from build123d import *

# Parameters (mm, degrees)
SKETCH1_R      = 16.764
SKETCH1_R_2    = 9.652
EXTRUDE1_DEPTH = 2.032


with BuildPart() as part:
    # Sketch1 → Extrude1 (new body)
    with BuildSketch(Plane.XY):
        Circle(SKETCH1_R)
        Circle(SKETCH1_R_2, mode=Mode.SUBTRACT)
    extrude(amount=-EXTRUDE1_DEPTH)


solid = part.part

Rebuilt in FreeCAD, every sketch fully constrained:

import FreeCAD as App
import Part
import Sketcher
Q = App.Units.Quantity

doc = App.newDocument("Part")
body = doc.addObject("PartDesign::Body", "Body")

# Sketch on XY plane
sketch1 = body.newObject("Sketcher::SketchObject", "Sketch")
sketch1.AttachmentSupport = (doc.getObject("XY_Plane"), [""])
sketch1.MapMode = "FlatFace"
sketch1.addGeometry([
    Part.Circle(App.Vector(0, 0, 0), App.Vector(0, 0, 1), 17),
    Part.Circle(App.Vector(0, 0, 0), App.Vector(0, 0, 1), 10),
], False)
sketch1.addConstraint([
    Sketcher.Constraint("Coincident", 0, 3, -1, 1),
    Sketcher.Constraint("Coincident", 1, 3, -1, 1),
    Sketcher.Constraint("Diameter", 0, Q("1.32 in")),
    Sketcher.Constraint("Diameter", 1, Q("0.76 in")),
])
pad1 = body.newObject("PartDesign::Pad", "Pad")
pad1.Profile = sketch1
pad1.Length = Q("0.08 in")
pad1.Reversed = True

doc.recompute()
